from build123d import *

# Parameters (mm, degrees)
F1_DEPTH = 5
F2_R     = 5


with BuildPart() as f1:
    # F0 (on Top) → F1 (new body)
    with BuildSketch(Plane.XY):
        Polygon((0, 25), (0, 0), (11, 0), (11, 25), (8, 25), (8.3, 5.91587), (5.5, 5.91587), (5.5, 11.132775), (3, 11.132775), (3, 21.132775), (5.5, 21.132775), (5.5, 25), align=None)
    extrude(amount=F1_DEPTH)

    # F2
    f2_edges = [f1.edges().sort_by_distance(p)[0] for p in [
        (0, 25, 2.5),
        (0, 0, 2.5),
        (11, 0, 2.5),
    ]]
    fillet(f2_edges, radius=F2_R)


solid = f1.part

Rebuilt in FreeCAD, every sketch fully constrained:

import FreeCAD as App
import Part
import Sketcher

V = App.Vector


def edges_at(feature, points):
    """Names of the edges that pass closest to the given points."""
    edges = feature.Shape.Edges
    near = lambda p: min(range(len(edges)), key=lambda i: edges[i].distToShape(Part.Vertex(*p))[0])
    return sorted({f"Edge{near(p) + 1}" for p in points})

doc = App.newDocument("Part")
body = doc.addObject("PartDesign::Body", "Body")

# Sketch on XY plane
sketch1 = body.newObject("Sketcher::SketchObject", "Sketch")
sketch1.AttachmentSupport = (doc.getObject("XY_Plane"), [""])
sketch1.MapMode = "FlatFace"
sketch1.addGeometry([
    Part.LineSegment(V(0, 25, 0), V(0, 0, 0)),  # 0
    Part.LineSegment(V(0, 0, 0), V(11, 0, 0)),  # 1
    Part.LineSegment(V(11, 0, 0), V(11, 25, 0)),  # 2
    Part.LineSegment(V(11, 25, 0), V(8, 25, 0)),  # 3
    Part.LineSegment(V(8, 25, 0), V(8.3, 5.9, 0)),  # 4
    Part.LineSegment(V(8.3, 5.9, 0), V(5.5, 5.9, 0)),  # 5
    Part.LineSegment(V(5.5, 5.9, 0), V(5.5, 11.1, 0)),  # 6
    Part.LineSegment(V(5.5, 11.1, 0), V(3, 11.1, 0)),  # 7
    Part.LineSegment(V(3, 11.1, 0), V(3, 21.1, 0)),  # 8
    Part.LineSegment(V(3, 21.1, 0), V(5.5, 21.1, 0)),  # 9
    Part.LineSegment(V(5.5, 21.1, 0), V(5.5, 25, 0)),  # 10
    Part.LineSegment(V(5.5, 25, 0), V(0, 25, 0)),  # 11
], False)
sketch1.addConstraint([
    Sketcher.Constraint("Coincident", 0, 2, 1, 1),
    Sketcher.Constraint("Coincident", 1, 2, 2, 1),
    Sketcher.Constraint("Coincident", 2, 2, 3, 1),
    Sketcher.Constraint("Coincident", 3, 2, 4, 1),
    Sketcher.Constraint("Coincident", 4, 2, 5, 1),
    Sketcher.Constraint("Coincident", 5, 2, 6, 1),
    Sketcher.Constraint("Coincident", 6, 2, 7, 1),
    Sketcher.Constraint("Coincident", 7, 2, 8, 1),
    Sketcher.Constraint("Coincident", 8, 2, 9, 1),
    Sketcher.Constraint("Coincident", 9, 2, 10, 1),
    Sketcher.Constraint("Coincident", 10, 2, 11, 1),
    Sketcher.Constraint("Coincident", 11, 2, 0, 1),
    Sketcher.Constraint("Vertical", 0),
    Sketcher.Constraint("Horizontal", 1),
    Sketcher.Constraint("Vertical", 2),
    Sketcher.Constraint("Horizontal", 3),
    Sketcher.Constraint("Horizontal", 5),
    Sketcher.Constraint("Vertical", 6),
    Sketcher.Constraint("Horizontal", 7),
    Sketcher.Constraint("Vertical", 8),
    Sketcher.Constraint("Horizontal", 9),
    Sketcher.Constraint("Vertical", 10),
    Sketcher.Constraint("Horizontal", 11),
    Sketcher.Constraint("Coincident", 0, 2, -1, 1),
    Sketcher.Constraint("Horizontal", 3, 2, 10, 2),
    Sketcher.Constraint("Vertical", 6, 2, 9, 2),
    Sketcher.Constraint("DistanceX", 1, 1, 1, 2, 11.0),
    Sketcher.Constraint("DistanceX", 3, 2, 3, 1, 3.0),
    Sketcher.Constraint("DistanceY", 0, 2, 0, 1, 25.0),
    Sketcher.Constraint("DistanceY", 8, 1, 8, 2, 10.0),
    Sketcher.Constraint("DistanceX", 5, 2, 5, 1, 2.8),
    Sketcher.Constraint("DistanceX", 7, 2, 7, 1, 2.5),
    Sketcher.Constraint("DistanceX", 11, 2, 11, 1, 5.5),
    Sketcher.Constraint("DistanceY", 6, 1, 6, 2, 5.216905),
    Sketcher.Constraint("DistanceY", 10, 1, 10, 2, 3.867225),
])
pad1 = body.newObject("PartDesign::Pad", "Pad")
pad1.Profile = sketch1
pad1.Length = 5
doc.recompute()

fillet = body.newObject("PartDesign::Fillet", "Fillet")
fillet.Base = (pad1, edges_at(pad1, [(0, 25, 2.5), (0, 0, 2.5), (11, 0, 2.5)]))
fillet.Radius = 5

doc.recompute()
